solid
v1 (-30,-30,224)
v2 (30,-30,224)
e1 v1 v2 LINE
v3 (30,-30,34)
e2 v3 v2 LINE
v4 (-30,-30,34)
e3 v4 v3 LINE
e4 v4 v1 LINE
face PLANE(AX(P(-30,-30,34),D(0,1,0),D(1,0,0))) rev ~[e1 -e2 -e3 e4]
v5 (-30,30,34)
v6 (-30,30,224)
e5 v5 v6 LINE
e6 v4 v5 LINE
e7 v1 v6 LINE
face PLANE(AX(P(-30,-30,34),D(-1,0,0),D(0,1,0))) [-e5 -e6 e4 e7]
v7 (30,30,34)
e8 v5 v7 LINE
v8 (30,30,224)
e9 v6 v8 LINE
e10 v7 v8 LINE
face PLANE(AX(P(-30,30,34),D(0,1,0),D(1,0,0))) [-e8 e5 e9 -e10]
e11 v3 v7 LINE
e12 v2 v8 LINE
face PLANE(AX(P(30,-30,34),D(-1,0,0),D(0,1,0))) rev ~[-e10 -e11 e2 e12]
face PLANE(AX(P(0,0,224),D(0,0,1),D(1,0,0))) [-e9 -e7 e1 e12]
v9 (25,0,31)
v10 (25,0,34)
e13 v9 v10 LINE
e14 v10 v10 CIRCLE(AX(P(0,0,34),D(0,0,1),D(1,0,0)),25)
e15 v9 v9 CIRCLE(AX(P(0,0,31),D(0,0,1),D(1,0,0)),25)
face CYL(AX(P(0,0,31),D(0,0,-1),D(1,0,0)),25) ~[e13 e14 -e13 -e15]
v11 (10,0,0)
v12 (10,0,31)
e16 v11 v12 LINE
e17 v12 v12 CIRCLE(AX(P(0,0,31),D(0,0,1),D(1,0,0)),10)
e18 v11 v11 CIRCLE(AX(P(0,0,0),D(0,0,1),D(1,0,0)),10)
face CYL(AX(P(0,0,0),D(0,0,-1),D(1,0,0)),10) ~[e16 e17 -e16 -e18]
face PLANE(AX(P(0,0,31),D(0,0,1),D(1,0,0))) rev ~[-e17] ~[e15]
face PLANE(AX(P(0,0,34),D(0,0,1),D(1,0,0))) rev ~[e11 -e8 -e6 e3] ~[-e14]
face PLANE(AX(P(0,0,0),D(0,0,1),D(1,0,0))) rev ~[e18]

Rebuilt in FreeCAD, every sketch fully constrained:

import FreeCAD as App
import Part
import Sketcher
Q = App.Units.Quantity

doc = App.newDocument("Part")
body = doc.addObject("PartDesign::Body", "Body")

# Sketch on XY plane
sketch1 = body.newObject("Sketcher::SketchObject", "Sketch")
sketch1.AttachmentSupport = (doc.getObject("XY_Plane"), [""])
sketch1.MapMode = "FlatFace"
sketch1.addGeometry(Part.Circle(App.Vector(0, 0, 0), App.Vector(0, 0, 1), 10), False)
sketch1.addConstraint([
    Sketcher.Constraint("Coincident", 0, 3, -1, 1),
    Sketcher.Constraint("Diameter", 0, Q("20 mm")),
])
pad1 = body.newObject("PartDesign::Pad", "Pad")
pad1.Profile = sketch1
pad1.Length = 31

# Sketch on XY plane
sketch2 = body.newObject("Sketcher::SketchObject", "Sketch001")
sketch2.AttachmentSupport = (doc.getObject("XY_Plane"), [""])
sketch2.MapMode = "FlatFace"
sketch2.AttachmentOffset = App.Placement(App.Vector(0, 0, 31), App.Rotation())
sketch2.addGeometry(Part.Circle(App.Vector(0, 0, 0), App.Vector(0, 0, 1), 25), False)
sketch2.addConstraint([
    Sketcher.Constraint("Coincident", 0, 3, -1, 1),
    Sketcher.Constraint("Diameter", 0, Q("50 mm")),
])
pad2 = body.newObject("PartDesign::Pad", "Pad001")
pad2.Profile = sketch2
pad2.Length = 3

# Sketch on XY plane
sketch3 = body.newObject("Sketcher::SketchObject", "Sketch002")
sketch3.AttachmentSupport = (doc.getObject("XY_Plane"), [""])
sketch3.MapMode = "FlatFace"
sketch3.AttachmentOffset = App.Placement(App.Vector(0, 0, 34), App.Rotation())
sketch3.addGeometry([
    Part.LineSegment(App.Vector(-30, 30, 0), App.Vector(-30, -30, 0)),
    Part.LineSegment(App.Vector(-30, -30, 0), App.Vector(30, -30, 0)),
    Part.LineSegment(App.Vector(30, -30, 0), App.Vector(30, 30, 0)),
    Part.LineSegment(App.Vector(30, 30, 0), App.Vector(-30, 30, 0)),
], False)
sketch3.addConstraint([
    Sketcher.Constraint("Coincident", 0, 2, 1, 1),
    Sketcher.Constraint("Coincident", 1, 2, 2, 1),
    Sketcher.Constraint("Coincident", 2, 2, 3, 1),
    Sketcher.Constraint("Coincident", 3, 2, 0, 1),
    Sketcher.Constraint("Vertical", 0),
    Sketcher.Constraint("Horizontal", 1),
    Sketcher.Constraint("Vertical", 2),
    Sketcher.Constraint("Horizontal", 3),
    Sketcher.Constraint("Symmetric", 0, 2, 2, 2, -1, 1),
    Sketcher.Constraint("Equal", 3, 0),
    Sketcher.Constraint("DistanceX", 1, 1, 1, 2, Q("60 mm")),
])
pad3 = body.newObject("PartDesign::Pad", "Pad002")
pad3.Profile = sketch3
pad3.Length = 190

doc.recompute()
